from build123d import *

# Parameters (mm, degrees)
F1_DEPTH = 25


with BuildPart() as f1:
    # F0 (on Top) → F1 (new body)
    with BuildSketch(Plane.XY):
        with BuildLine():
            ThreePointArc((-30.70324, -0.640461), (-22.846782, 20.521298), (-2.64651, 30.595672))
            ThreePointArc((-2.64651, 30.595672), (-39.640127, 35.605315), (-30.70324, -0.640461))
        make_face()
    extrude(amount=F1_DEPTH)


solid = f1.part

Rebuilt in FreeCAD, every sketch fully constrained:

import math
import FreeCAD as App
import Part
import Sketcher
from FreeCAD import Vector

doc = App.newDocument("Part")
body = doc.addObject("PartDesign::Body", "Body")

sketch1 = body.newObject("Sketcher::SketchObject", "Sketch")
sketch1.AttachmentSupport = (doc.getObject("XY_Plane"), [""])
sketch1.MapMode = "FlatFace"
sketch1.addGeometry(Part.ArcOfCircle(Part.Circle(Vector(0, 0, 0), Vector(0, 0, 1), 31), math.radians(95), math.radians(181)), False)
sketch1.addGeometry(Part.ArcOfCircle(Part.Circle(Vector(-23, 21, 0), Vector(0, 0, 1), 23), math.radians(27), math.radians(250)), False)
sketch1.addConstraint(Sketcher.Constraint("Coincident", 0, 1, 1, 1))
sketch1.addConstraint(Sketcher.Constraint("Coincident", 1, 2, 0, 2))
sketch1.addConstraint(Sketcher.Constraint("Coincident", 0, 3, -1, 1))
sketch1.addConstraint(Sketcher.Constraint("Radius", 0, 30.709921))
sketch1.addConstraint(Sketcher.Constraint("Radius", 1, 22.573081))
sketch1.addConstraint(Sketcher.Constraint("DistanceY", -1, 1, 1, 3, 20.521298))
sketch1.addConstraint(Sketcher.Constraint("DistanceX", 0, 1, -1, 1, 2.64651))
pad1 = body.newObject("PartDesign::Pad", "Pad")
pad1.Profile = sketch1
pad1.Length = 25

doc.recompute()
